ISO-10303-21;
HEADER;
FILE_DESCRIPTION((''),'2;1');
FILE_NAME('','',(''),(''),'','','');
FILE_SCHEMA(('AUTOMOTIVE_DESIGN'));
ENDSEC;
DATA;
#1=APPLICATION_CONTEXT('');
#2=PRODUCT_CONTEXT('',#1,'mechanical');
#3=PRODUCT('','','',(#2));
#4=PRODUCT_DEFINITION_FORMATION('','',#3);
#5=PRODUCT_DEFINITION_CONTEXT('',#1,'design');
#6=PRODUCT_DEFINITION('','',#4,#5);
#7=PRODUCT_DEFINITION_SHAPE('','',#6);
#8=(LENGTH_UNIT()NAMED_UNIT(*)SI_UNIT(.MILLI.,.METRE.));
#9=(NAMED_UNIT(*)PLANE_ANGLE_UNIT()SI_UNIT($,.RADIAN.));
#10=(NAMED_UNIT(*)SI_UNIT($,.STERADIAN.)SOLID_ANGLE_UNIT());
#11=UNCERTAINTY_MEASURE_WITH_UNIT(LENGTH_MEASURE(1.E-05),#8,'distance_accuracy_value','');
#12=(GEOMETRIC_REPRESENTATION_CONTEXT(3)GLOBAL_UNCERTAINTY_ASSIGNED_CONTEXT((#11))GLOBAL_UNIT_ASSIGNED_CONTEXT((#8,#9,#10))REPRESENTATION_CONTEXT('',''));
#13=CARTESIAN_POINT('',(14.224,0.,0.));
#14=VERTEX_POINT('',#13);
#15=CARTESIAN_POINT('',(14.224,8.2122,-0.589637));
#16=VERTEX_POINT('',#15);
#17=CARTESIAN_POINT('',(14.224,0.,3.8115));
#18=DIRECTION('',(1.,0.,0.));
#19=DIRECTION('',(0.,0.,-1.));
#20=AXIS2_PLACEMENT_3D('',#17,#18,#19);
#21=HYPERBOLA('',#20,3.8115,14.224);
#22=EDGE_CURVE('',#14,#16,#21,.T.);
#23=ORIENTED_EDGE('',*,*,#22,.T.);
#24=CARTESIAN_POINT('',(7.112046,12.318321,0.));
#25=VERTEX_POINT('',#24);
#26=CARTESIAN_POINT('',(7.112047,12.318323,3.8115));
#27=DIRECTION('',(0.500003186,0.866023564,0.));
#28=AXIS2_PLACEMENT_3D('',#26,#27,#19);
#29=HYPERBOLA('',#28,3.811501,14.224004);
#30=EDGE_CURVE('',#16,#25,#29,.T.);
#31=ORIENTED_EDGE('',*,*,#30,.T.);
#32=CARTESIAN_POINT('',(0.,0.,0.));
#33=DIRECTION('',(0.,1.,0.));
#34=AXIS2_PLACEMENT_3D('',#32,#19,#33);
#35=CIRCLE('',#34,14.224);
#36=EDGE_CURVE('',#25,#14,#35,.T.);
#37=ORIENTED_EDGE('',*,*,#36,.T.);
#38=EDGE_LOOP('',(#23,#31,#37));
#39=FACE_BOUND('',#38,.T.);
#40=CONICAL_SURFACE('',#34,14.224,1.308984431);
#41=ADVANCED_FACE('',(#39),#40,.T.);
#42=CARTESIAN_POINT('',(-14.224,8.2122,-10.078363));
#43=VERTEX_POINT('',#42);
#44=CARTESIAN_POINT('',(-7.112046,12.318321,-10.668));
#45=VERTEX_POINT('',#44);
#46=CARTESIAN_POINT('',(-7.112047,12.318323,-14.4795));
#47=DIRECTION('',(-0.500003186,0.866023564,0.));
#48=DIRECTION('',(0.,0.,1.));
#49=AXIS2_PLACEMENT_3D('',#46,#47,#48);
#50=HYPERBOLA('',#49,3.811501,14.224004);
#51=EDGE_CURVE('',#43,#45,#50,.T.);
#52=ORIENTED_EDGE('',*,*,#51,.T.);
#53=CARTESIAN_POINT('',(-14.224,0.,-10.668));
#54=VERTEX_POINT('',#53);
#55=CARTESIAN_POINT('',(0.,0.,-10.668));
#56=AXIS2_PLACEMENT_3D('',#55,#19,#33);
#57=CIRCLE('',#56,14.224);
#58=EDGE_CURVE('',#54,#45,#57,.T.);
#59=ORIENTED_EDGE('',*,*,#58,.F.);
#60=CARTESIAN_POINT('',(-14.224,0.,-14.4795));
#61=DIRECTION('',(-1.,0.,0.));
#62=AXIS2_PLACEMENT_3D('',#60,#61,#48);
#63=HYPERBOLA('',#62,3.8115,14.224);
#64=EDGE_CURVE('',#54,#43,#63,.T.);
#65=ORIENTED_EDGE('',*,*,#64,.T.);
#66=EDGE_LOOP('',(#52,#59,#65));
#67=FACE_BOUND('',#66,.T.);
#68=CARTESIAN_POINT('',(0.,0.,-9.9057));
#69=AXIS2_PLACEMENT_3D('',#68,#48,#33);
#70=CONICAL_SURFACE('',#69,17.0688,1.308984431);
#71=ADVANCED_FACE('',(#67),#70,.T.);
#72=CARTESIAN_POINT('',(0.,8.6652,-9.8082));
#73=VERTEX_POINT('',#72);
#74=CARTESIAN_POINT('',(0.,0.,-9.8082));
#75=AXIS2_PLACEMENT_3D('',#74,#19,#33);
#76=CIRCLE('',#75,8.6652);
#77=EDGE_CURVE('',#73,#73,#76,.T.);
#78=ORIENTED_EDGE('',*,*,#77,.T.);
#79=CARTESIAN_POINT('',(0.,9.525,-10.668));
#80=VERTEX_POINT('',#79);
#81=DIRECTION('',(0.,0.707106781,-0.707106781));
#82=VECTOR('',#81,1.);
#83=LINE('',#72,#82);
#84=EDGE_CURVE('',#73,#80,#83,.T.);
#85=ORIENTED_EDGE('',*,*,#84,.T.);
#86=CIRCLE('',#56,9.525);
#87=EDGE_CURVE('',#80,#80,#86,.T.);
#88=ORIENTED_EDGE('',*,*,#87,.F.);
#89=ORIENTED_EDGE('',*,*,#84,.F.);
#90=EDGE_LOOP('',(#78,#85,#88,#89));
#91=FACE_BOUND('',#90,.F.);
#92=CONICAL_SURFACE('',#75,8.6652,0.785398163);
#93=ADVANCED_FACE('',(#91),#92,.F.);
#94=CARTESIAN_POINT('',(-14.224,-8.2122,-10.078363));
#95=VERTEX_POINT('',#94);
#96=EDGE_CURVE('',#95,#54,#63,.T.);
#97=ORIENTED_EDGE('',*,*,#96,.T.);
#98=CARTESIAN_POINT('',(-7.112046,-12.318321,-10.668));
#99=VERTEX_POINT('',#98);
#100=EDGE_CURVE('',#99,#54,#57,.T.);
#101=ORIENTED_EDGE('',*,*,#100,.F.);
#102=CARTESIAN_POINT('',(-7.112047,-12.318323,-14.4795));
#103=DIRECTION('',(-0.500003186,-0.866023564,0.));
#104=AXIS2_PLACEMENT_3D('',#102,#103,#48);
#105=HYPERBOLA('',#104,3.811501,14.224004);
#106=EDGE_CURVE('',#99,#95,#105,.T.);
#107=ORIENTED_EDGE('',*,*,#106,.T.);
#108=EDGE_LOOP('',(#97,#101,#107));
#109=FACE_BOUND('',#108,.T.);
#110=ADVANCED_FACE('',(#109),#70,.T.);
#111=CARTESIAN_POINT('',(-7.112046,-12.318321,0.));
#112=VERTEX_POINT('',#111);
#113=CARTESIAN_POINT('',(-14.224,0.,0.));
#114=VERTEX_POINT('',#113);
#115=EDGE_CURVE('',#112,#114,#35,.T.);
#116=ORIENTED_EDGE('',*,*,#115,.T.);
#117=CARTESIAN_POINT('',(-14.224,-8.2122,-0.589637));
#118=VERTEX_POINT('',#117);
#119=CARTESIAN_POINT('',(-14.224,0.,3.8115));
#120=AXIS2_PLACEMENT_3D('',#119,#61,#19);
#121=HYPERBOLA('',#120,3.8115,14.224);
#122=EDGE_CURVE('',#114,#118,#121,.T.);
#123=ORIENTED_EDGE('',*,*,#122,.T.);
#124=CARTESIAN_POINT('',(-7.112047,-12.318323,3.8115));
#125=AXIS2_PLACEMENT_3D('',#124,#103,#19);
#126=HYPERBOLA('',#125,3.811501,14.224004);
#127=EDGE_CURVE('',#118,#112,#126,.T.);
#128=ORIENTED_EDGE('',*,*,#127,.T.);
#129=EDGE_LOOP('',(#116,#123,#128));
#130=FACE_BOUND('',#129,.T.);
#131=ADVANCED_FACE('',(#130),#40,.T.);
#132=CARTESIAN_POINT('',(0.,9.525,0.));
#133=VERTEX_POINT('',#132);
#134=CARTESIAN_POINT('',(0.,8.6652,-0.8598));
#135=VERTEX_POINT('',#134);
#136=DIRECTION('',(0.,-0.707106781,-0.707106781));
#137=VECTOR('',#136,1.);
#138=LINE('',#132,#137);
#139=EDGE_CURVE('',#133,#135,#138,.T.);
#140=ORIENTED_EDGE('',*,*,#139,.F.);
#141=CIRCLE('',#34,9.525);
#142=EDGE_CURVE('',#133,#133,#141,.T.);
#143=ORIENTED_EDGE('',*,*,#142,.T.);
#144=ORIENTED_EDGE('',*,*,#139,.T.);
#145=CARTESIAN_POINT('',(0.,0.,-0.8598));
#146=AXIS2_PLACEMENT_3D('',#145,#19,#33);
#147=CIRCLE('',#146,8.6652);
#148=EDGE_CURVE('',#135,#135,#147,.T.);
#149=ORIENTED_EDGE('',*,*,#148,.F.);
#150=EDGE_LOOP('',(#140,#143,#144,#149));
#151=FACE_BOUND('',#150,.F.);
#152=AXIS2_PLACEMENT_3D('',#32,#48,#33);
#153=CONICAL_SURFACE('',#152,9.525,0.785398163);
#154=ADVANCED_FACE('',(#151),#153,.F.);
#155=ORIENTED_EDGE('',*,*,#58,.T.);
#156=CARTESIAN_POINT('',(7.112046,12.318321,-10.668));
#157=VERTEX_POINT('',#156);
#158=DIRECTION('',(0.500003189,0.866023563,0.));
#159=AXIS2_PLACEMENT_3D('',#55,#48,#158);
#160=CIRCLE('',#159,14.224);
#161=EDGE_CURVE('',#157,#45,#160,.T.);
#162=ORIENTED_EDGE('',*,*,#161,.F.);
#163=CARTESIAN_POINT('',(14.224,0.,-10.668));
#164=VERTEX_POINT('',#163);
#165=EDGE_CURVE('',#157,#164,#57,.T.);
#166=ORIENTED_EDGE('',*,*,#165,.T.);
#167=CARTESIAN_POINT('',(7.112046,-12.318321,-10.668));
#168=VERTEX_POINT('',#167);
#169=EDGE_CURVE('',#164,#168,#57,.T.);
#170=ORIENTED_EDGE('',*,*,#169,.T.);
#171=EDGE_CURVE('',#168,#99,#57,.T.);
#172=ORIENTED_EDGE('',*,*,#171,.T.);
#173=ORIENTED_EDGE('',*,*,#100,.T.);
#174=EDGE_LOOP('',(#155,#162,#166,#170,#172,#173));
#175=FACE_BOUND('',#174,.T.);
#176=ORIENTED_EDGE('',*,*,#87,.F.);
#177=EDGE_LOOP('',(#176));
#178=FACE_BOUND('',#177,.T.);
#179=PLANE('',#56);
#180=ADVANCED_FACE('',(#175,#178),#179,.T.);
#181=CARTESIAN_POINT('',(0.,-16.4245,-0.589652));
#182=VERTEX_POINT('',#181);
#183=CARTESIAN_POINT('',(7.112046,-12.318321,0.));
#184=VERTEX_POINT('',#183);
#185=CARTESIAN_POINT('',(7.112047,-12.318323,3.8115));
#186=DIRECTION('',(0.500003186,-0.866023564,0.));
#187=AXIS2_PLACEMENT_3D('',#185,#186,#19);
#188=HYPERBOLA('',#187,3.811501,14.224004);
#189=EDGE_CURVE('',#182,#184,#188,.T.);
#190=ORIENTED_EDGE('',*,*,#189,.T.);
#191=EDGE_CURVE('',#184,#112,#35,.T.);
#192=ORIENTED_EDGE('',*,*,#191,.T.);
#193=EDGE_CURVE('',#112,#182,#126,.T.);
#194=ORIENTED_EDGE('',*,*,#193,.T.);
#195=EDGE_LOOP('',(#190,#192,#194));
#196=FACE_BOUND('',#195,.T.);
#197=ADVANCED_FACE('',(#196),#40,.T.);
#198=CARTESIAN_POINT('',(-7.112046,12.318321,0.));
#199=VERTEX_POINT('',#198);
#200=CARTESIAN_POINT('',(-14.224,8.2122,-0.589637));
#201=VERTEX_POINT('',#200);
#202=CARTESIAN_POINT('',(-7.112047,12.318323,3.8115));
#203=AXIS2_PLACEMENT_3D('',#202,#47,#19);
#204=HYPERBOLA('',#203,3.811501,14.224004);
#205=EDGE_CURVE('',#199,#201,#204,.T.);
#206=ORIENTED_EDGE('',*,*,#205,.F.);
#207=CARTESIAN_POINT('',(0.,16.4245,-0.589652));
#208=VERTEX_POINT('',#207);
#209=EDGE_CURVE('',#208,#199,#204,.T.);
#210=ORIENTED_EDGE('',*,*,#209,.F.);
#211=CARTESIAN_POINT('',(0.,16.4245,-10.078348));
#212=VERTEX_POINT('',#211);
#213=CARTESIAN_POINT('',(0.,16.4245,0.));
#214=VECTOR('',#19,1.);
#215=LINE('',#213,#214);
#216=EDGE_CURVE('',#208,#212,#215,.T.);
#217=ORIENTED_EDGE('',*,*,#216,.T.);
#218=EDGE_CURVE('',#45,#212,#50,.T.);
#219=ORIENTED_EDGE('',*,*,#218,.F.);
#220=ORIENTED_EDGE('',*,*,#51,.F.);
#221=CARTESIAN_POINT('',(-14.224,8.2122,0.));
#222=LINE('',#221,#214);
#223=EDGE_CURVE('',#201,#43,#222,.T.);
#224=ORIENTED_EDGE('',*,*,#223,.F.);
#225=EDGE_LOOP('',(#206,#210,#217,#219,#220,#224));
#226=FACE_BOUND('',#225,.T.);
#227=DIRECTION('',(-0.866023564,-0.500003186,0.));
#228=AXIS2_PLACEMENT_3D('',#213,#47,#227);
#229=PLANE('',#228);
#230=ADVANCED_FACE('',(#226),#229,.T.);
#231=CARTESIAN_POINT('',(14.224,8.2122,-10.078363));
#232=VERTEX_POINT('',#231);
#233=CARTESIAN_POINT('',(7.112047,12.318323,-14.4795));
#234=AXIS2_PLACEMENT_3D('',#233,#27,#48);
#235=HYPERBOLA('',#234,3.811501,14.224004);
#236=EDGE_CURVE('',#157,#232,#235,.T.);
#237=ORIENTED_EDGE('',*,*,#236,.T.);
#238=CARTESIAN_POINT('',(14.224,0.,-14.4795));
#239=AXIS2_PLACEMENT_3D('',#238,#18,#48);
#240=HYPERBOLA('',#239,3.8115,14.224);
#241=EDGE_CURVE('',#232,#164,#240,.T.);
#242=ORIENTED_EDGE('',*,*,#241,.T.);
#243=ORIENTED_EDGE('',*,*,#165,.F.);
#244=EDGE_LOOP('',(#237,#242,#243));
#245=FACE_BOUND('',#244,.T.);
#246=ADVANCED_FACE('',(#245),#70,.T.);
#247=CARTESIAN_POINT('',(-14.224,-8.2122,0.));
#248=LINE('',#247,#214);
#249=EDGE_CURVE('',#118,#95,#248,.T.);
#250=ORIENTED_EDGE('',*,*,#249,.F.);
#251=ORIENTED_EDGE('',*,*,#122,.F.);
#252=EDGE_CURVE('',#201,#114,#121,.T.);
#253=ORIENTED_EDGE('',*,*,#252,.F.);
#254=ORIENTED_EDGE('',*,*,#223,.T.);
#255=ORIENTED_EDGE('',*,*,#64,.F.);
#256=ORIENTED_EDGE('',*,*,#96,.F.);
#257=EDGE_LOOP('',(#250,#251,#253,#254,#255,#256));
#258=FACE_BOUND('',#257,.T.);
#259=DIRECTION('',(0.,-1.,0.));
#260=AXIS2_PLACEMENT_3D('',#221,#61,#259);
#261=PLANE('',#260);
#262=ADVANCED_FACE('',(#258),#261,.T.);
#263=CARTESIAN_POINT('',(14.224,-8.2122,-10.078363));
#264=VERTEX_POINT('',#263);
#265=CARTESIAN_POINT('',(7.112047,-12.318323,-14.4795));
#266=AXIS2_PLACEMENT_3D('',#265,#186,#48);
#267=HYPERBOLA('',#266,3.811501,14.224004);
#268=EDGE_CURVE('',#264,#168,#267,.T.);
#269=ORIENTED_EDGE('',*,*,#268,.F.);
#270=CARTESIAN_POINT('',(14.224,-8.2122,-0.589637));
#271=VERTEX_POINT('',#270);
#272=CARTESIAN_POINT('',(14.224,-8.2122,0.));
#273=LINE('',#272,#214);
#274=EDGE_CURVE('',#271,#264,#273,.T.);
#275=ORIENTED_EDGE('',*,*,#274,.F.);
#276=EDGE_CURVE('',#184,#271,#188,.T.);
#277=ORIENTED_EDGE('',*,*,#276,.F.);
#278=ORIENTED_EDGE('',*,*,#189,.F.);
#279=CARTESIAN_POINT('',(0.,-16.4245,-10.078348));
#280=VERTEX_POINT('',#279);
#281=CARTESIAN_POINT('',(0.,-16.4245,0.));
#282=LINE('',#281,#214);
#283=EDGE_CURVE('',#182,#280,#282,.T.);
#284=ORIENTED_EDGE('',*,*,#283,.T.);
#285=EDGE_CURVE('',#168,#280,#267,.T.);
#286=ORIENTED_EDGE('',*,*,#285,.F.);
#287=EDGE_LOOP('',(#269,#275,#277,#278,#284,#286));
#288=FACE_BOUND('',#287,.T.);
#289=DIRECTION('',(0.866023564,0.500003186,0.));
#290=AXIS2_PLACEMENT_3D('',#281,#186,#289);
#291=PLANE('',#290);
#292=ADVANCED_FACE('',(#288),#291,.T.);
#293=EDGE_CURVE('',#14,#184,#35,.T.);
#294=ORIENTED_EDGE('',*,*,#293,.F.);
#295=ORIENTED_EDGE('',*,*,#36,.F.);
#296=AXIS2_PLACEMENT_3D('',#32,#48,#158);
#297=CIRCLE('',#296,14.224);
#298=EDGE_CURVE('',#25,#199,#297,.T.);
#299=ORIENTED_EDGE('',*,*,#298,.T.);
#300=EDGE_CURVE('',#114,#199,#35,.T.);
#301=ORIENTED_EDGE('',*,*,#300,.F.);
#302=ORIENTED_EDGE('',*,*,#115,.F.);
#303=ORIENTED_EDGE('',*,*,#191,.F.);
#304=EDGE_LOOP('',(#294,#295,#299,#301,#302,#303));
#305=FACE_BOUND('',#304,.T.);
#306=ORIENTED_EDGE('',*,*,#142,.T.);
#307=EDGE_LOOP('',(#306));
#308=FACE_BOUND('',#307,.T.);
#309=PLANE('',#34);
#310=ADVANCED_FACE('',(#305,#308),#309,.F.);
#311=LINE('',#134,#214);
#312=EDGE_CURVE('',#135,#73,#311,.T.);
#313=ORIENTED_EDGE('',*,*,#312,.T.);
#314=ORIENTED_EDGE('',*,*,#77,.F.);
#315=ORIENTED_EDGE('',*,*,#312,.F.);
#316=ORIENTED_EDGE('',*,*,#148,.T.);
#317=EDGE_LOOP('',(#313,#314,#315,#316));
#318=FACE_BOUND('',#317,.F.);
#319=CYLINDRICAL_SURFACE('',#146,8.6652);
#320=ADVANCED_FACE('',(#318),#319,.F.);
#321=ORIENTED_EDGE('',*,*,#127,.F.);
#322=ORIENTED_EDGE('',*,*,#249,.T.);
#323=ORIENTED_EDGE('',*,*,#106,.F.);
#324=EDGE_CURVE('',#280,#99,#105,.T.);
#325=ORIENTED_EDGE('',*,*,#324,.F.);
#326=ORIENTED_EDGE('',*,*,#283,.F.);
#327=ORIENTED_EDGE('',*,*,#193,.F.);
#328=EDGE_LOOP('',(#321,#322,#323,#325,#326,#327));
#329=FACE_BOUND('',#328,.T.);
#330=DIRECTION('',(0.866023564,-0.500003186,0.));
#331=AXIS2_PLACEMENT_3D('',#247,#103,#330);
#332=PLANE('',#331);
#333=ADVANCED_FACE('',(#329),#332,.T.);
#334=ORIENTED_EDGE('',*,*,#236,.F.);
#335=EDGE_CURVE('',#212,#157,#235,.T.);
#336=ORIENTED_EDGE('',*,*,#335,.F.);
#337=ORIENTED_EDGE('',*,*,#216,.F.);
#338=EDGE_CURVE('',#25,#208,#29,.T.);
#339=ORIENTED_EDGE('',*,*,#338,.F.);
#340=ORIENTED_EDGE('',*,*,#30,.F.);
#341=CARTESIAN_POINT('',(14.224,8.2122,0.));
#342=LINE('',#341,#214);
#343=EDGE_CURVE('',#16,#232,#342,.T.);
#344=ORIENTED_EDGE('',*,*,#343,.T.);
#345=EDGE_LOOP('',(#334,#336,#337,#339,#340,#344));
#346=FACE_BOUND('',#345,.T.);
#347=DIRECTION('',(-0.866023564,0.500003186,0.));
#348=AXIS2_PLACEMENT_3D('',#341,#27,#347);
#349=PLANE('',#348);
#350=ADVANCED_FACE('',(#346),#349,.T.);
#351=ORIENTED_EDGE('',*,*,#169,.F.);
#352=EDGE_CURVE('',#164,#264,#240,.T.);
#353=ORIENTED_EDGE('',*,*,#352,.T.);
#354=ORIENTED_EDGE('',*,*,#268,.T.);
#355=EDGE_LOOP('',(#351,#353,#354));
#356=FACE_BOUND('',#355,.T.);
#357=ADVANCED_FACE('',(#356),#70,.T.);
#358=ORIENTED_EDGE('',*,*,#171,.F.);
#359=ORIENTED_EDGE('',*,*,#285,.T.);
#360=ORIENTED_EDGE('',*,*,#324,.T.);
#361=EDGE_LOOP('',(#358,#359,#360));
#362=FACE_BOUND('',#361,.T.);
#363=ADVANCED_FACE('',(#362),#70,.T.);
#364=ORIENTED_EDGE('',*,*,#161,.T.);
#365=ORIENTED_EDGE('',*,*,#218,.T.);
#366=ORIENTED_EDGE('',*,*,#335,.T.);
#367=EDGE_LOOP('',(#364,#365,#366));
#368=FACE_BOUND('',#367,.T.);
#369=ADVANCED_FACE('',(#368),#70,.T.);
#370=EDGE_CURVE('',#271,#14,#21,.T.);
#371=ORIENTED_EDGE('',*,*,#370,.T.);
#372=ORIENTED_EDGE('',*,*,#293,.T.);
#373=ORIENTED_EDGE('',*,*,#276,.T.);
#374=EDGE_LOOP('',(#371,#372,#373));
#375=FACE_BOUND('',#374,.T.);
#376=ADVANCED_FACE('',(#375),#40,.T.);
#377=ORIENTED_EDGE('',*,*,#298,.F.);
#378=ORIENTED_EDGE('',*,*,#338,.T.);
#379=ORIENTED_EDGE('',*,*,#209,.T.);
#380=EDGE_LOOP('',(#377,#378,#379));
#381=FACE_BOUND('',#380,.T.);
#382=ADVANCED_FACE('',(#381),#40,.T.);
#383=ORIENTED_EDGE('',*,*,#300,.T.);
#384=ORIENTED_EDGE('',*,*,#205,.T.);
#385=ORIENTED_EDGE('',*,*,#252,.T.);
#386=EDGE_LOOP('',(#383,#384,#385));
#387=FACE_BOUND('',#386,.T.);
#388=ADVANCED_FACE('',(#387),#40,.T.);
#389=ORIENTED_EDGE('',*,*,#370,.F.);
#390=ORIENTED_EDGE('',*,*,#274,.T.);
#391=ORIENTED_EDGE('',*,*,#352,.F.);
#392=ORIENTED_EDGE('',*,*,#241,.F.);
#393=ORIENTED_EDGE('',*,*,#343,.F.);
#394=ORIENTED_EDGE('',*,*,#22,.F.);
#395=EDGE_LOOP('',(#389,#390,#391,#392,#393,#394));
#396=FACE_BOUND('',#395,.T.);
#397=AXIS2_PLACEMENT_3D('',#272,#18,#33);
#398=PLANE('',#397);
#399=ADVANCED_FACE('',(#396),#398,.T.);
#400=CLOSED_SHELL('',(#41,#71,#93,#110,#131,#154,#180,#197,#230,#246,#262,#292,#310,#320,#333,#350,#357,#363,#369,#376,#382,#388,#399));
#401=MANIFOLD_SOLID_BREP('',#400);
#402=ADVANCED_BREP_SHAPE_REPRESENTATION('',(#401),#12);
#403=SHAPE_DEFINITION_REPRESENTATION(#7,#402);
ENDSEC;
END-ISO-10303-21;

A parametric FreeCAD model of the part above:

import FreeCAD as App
import Part
import Sketcher

V = App.Vector
Q = App.Units.Quantity


def add_polygon(sketch, points):
    """Adds a closed chain of lines whose ends are joined by coincident constraints."""
    first, n = sketch.GeometryCount, len(points)
    for a, b in zip(points, points[1:] + points[:1]):
        sketch.addGeometry(Part.LineSegment(App.Vector(*a, 0), App.Vector(*b, 0)), False)
    for i in range(n):
        sketch.addConstraint(Sketcher.Constraint("Coincident", first + i, 2, first + (i + 1) % n, 1))

doc = App.newDocument("Part")
params = doc.addObject("Spreadsheet::Sheet", "Params")
for row, (alias, value) in enumerate([
    ("sketch1_width", "0.56 in"),
    ("sketch1_height", "0.42 in"),
    ("revolution_angle", "360 deg"),
    ("sketch2_width", "2.24 in"),
    ("pocket1_length", "0.42 in"),
    ("sketch3_height", "0.42 in"),
    ("sketch3_width", "0.375 in"),
    ("groove_angle", "360 deg"),
], start=1):
    params.set(f"A{row}", alias)
    params.set(f"B{row}", "=" + value)
    params.setAlias(f"B{row}", alias)

body = doc.addObject("PartDesign::Body", "Body")

sketch1 = body.newObject("Sketcher::SketchObject", "Sketch")
sketch1.AttachmentSupport = (doc.getObject("YZ_Plane"), [""])
sketch1.MapMode = "FlatFace"
add_polygon(sketch1, [(0, 0), (0, -10.668), (14.224, -10.668), (17.0688, -9.9057), (17.0688, -0.7623), (14.224, 0)])
sketch1.addConstraint([
    Sketcher.Constraint("Vertical", 0),
    Sketcher.Constraint("Horizontal", 1),
    Sketcher.Constraint("Vertical", 3),
    Sketcher.Constraint("Horizontal", 5),
    Sketcher.Constraint("Coincident", 5, 2, -1, 1),
    Sketcher.Constraint("Vertical", 1, 2, 4, 2),
    Sketcher.Constraint("Equal", 2, 4),
    Sketcher.Constraint("Angle", 2, Q("15.0007 deg")),
    Sketcher.Constraint("DistanceX", 1, 1, 1, 2, Q("0.56 in")),
    Sketcher.Constraint("DistanceY", 0, 2, 0, 1, Q("0.42 in")),
    Sketcher.Constraint("DistanceY", 2, 2, -1, 1, Q("0.39 in")),
])
sketch1.setExpression("Constraints[14]", "Params.sketch1_width")
sketch1.setExpression("Constraints[15]", "Params.sketch1_height")
revolution = body.newObject("PartDesign::Revolution", "Revolution")
revolution.Profile = sketch1
revolution.ReferenceAxis = (sketch1, ["V_Axis"])
revolution.setExpression("Angle", "Params.revolution_angle")

sketch2 = body.newObject("Sketcher::SketchObject", "Sketch001")
sketch2.AttachmentSupport = (doc.getObject("XY_Plane"), [""])
sketch2.MapMode = "FlatFace"
add_polygon(sketch2, [(-28.448, 28.448), (-28.448, -28.448), (28.448, -28.448), (28.448, 28.448)])
add_polygon(sketch2, [(0, -16.4245), (-14.224, -8.2122), (-14.224, 8.2122), (0, 16.4245), (14.224, 8.2122), (14.224, -8.2122)])
sketch2.addConstraint([
    Sketcher.Constraint("Vertical", 0),
    Sketcher.Constraint("Horizontal", 1),
    Sketcher.Constraint("Vertical", 2),
    Sketcher.Constraint("Horizontal", 3),
    Sketcher.Constraint("Vertical", 5),
    Sketcher.Constraint("Vertical", 8),
    Sketcher.Constraint("Symmetric", 0, 2, 2, 2, -1, 1),
    Sketcher.Constraint("Symmetric", 4, 2, 7, 2, -1, 1),
    Sketcher.Constraint("Symmetric", 6, 2, 9, 2, -1, 1),
    Sketcher.Constraint("PointOnObject", 6, 2, -2),
    Sketcher.Constraint("Parallel", 6, 9),
    Sketcher.Constraint("Horizontal", 5, 2, 7, 2),
    Sketcher.Constraint("Equal", 3, 0),
    Sketcher.Constraint("Angle", 4, Q("149.9998 deg")),
    Sketcher.Constraint("DistanceX", 1, 1, 1, 2, Q("2.24 in")),
    Sketcher.Constraint("DistanceX", 4, 2, -1, 1, Q("0.56 in")),
    Sketcher.Constraint("DistanceY", 5, 1, 5, 2, Q("16.4244 mm")),
])
sketch2.setExpression("Constraints[24]", "Params.sketch2_width")
pocket1 = body.newObject("PartDesign::Pocket", "Pocket")
pocket1.Profile = sketch2
pocket1.setExpression("Length", "Params.pocket1_length")

sketch3 = body.newObject("Sketcher::SketchObject", "Sketch002")
sketch3.AttachmentSupport = (doc.getObject("YZ_Plane"), [""])
sketch3.MapMode = "FlatFace"
add_polygon(sketch3, [(0, 0), (0, -10.668), (9.525, -10.668), (8.6652, -9.8082), (8.6652, -0.8598), (9.525, 0)])
sketch3.addConstraint([
    Sketcher.Constraint("Vertical", 0),
    Sketcher.Constraint("Horizontal", 1),
    Sketcher.Constraint("Vertical", 3),
    Sketcher.Constraint("Horizontal", 5),
    Sketcher.Constraint("Coincident", 5, 2, -1, 1),
    Sketcher.Constraint("Perpendicular", 2, 4),
    Sketcher.Constraint("Vertical", 1, 2, 4, 2),
    Sketcher.Constraint("Equal", 2, 4),
    Sketcher.Constraint("DistanceY", 0, 2, 0, 1, Q("0.42 in")),
    Sketcher.Constraint("DistanceX", 1, 1, 1, 2, Q("0.375 in")),
    Sketcher.Constraint("DistanceY", 3, 1, 3, 2, Q("0.3523 in")),
])
sketch3.setExpression("Constraints[14]", "Params.sketch3_height")
sketch3.setExpression("Constraints[15]", "Params.sketch3_width")
groove = body.newObject("PartDesign::Groove", "Groove")
groove.Profile = sketch3
groove.ReferenceAxis = (sketch3, ["V_Axis"])
groove.setExpression("Angle", "Params.groove_angle")

doc.recompute()
